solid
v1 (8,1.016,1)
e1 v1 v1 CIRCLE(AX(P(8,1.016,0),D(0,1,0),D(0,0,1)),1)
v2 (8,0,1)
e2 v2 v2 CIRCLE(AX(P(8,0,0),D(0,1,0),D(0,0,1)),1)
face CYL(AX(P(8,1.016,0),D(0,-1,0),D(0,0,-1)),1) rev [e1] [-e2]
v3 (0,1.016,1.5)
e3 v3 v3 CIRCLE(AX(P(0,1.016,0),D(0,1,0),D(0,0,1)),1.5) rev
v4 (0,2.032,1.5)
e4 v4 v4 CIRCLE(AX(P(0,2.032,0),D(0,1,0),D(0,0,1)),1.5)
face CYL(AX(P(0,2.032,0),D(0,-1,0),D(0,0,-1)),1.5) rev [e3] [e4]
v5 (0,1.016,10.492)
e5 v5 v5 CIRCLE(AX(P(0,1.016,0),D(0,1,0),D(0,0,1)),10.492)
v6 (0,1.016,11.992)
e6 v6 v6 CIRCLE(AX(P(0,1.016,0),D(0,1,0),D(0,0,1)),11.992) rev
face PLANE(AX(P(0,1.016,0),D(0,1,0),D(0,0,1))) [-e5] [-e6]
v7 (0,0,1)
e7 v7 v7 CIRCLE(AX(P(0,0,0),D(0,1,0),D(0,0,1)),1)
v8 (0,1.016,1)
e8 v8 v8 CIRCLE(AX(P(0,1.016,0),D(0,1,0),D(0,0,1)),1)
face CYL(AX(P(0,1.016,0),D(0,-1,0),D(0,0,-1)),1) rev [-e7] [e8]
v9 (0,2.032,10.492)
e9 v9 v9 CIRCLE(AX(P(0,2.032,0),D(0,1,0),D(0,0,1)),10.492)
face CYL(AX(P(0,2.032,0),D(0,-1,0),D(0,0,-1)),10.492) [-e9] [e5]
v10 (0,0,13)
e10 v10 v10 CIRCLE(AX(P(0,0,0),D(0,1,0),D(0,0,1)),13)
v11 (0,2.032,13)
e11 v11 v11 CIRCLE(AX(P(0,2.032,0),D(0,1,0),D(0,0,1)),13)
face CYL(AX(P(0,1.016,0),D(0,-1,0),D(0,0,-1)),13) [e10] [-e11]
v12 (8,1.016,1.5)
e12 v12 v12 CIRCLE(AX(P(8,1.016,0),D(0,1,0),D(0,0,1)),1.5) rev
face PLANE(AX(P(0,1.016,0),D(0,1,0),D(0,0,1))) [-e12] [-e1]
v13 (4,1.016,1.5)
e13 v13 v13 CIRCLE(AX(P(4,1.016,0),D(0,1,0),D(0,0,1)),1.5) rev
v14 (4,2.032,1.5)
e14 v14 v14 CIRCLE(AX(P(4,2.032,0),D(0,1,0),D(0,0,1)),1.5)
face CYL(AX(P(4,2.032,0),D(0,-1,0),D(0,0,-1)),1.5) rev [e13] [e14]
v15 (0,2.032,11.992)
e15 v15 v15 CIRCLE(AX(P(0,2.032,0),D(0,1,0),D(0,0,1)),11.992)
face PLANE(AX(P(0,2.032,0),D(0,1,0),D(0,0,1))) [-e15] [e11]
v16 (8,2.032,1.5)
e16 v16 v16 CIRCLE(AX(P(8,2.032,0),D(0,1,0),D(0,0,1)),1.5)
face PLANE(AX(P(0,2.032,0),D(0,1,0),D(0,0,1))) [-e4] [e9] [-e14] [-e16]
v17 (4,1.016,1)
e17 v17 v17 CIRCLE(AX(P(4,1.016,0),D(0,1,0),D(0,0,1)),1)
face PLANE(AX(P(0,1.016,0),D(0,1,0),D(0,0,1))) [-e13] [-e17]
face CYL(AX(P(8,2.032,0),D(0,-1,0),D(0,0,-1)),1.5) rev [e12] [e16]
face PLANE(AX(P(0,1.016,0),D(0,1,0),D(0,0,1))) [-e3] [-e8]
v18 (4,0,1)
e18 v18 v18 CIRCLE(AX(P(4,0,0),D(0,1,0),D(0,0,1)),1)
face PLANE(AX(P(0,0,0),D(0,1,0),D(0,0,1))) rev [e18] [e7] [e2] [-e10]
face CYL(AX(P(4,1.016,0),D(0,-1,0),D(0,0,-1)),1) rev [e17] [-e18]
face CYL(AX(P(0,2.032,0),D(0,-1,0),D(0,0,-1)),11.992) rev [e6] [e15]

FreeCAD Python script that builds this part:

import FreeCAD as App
import Part
import Sketcher
Q = App.Units.Quantity

doc = App.newDocument("Part")
body = doc.addObject("PartDesign::Body", "Body")

sketch1 = body.newObject("Sketcher::SketchObject", "Sketch")
sketch1.AttachmentSupport = (doc.getObject("XZ_Plane"), [""])
sketch1.MapMode = "FlatFace"
sketch1.addGeometry([
    Part.Circle(App.Vector(0, 0, 0), App.Vector(0, 0, 1), 13),
    Part.Circle(App.Vector(0, 0, 0), App.Vector(0, 0, 1), 1),
    Part.Circle(App.Vector(4, 0, 0), App.Vector(0, 0, 1), 1),
    Part.Circle(App.Vector(8, 0, 0), App.Vector(0, 0, 1), 1),
], False)
sketch1.addConstraint([
    Sketcher.Constraint("Coincident", 0, 3, -1, 1),
    Sketcher.Constraint("Coincident", 1, 3, -1, 1),
    Sketcher.Constraint("Equal", 1, 2),
    Sketcher.Constraint("Equal", 2, 3),
    Sketcher.Constraint("PointOnObject", 2, 3, -1),
    Sketcher.Constraint("PointOnObject", 3, 3, -1),
    Sketcher.Constraint("Diameter", 0, Q("26 mm")),
    Sketcher.Constraint("Diameter", 1, Q("2 mm")),
    Sketcher.Constraint("DistanceX", -1, 1, 2, 3, Q("4 mm")),
    Sketcher.Constraint("DistanceX", -1, 1, 3, 3, Q("8 mm")),
])
pad1 = body.newObject("PartDesign::Pad", "Pad")
pad1.Profile = sketch1
pad1.Length = 1.016
pad1.Reversed = True

sketch2 = body.newObject("Sketcher::SketchObject", "Sketch001")
sketch2.AttachmentSupport = (doc.getObject("XZ_Plane"), [""])
sketch2.MapMode = "FlatFace"
sketch2.AttachmentOffset = App.Placement(App.Vector(0, 0, -1.016), App.Rotation())
sketch2.addGeometry([
    Part.Circle(App.Vector(0, 0, 0), App.Vector(0, 0, 1), 13),
    Part.Circle(App.Vector(0, 0, 0), App.Vector(0, 0, 1), 11.992),
    Part.Circle(App.Vector(0, 0, 0), App.Vector(0, 0, 1), 10.492),
    Part.Circle(App.Vector(0, 0, 0), App.Vector(0, 0, 1), 1.5),
    Part.Circle(App.Vector(8, 0, 0), App.Vector(0, 0, 1), 1.5),
    Part.Circle(App.Vector(4, 0, 0), App.Vector(0, 0, 1), 1.5),
], False)
sketch2.addConstraint([
    Sketcher.Constraint("Coincident", 0, 3, -1, 1),
    Sketcher.Constraint("Coincident", 1, 3, -1, 1),
    Sketcher.Constraint("Coincident", 2, 3, -1, 1),
    Sketcher.Constraint("Coincident", 3, 3, -1, 1),
    Sketcher.Constraint("Equal", 3, 4),
    Sketcher.Constraint("Equal", 4, 5),
    Sketcher.Constraint("PointOnObject", 4, 3, -1),
    Sketcher.Constraint("PointOnObject", 5, 3, -1),
    Sketcher.Constraint("Diameter", 0, Q("26 mm")),
    Sketcher.Constraint("Diameter", 3, Q("3 mm")),
    Sketcher.Constraint("Diameter", 1, Q("23.984 mm")),
    Sketcher.Constraint("Diameter", 2, Q("20.984 mm")),
    Sketcher.Constraint("DistanceX", -1, 1, 4, 3, Q("8 mm")),
    Sketcher.Constraint("DistanceX", -1, 1, 5, 3, Q("4 mm")),
])
pad2 = body.newObject("PartDesign::Pad", "Pad001")
pad2.Profile = sketch2
pad2.Length = 1.016
pad2.Reversed = True

doc.recompute()
